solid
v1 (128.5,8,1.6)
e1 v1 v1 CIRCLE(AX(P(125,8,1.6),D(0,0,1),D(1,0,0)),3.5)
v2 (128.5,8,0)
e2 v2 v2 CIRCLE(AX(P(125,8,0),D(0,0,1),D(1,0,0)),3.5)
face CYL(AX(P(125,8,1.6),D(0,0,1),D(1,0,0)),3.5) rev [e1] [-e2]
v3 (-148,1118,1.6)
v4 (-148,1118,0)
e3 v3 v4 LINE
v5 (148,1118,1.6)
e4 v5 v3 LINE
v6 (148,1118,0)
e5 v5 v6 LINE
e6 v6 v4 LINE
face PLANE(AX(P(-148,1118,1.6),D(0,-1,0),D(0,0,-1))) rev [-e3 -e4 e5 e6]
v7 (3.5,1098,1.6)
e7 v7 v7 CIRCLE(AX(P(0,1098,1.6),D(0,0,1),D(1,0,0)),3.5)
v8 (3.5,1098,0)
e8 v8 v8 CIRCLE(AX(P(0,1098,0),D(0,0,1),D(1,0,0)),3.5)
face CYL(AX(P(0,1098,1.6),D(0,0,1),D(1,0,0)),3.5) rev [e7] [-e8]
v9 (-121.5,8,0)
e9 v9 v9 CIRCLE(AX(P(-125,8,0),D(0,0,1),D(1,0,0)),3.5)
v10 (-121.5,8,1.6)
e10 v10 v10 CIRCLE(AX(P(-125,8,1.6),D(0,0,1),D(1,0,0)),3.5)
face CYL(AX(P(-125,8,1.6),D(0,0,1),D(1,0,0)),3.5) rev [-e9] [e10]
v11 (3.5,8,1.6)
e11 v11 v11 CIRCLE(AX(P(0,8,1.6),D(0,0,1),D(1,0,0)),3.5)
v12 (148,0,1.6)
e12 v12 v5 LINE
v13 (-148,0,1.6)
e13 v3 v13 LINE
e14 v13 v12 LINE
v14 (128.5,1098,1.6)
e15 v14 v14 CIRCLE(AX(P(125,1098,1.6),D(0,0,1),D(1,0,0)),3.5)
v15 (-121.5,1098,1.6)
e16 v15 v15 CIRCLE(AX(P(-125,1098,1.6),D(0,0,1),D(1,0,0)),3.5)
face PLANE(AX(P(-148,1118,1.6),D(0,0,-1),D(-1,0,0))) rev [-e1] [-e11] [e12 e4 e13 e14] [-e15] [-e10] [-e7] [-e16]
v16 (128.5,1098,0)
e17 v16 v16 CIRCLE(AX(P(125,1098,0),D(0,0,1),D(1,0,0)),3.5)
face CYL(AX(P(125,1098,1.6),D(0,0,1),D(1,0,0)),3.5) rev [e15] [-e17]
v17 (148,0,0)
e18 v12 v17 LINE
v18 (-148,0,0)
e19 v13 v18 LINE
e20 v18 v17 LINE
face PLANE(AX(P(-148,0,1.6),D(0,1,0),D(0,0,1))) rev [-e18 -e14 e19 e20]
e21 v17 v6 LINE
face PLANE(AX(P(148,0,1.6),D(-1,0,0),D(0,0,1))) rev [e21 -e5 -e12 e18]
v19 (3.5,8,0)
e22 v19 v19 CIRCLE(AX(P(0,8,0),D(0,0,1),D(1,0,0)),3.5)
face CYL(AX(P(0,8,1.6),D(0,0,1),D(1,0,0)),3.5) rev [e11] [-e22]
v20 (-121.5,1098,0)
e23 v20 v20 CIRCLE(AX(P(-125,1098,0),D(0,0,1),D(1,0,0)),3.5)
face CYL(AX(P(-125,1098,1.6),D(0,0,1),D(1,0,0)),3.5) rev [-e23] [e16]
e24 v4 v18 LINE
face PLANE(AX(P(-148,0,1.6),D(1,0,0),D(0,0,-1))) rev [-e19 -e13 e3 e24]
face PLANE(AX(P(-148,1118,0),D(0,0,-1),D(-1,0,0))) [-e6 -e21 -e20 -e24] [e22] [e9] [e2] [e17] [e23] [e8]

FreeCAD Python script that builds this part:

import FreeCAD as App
import Part
import Sketcher

V = App.Vector

doc = App.newDocument("Part")
body = doc.addObject("PartDesign::Body", "Body")

# Sketch on XY plane
sketch1 = doc.addObject("Sketcher::SketchObject", "Sketch")
body.addObject(sketch1)
sketch1.AttachmentSupport = (doc.XY_Plane, [""])
sketch1.MapMode = "FlatFace"
sketch1.addGeometry([
    Part.LineSegment(V(-148, 1118, 0), V(-148, 0, 0)),
    Part.LineSegment(V(-148, 0, 0), V(148, 0, 0)),
    Part.LineSegment(V(148, 0, 0), V(148, 1118, 0)),
    Part.LineSegment(V(148, 1118, 0), V(-148, 1118, 0)),
], False)
sketch1.addConstraint([
    Sketcher.Constraint("Coincident", 0, 2, 1, 1),
    Sketcher.Constraint("Coincident", 1, 2, 2, 1),
    Sketcher.Constraint("Coincident", 2, 2, 3, 1),
    Sketcher.Constraint("Coincident", 3, 2, 0, 1),
    Sketcher.Constraint("Vertical", 0),
    Sketcher.Constraint("Horizontal", 1),
    Sketcher.Constraint("Vertical", 2),
    Sketcher.Constraint("Horizontal", 3),
    Sketcher.Constraint("Symmetric", 0, 2, 1, 2, -1, 1),
    Sketcher.Constraint("DistanceX", 1, 1, 1, 2, 296.0),
    Sketcher.Constraint("DistanceY", 0, 2, 0, 1, 1118.0),
])
pad1 = doc.addObject("PartDesign::Pad", "Pad")
body.addObject(pad1)
pad1.Profile = sketch1
pad1.Length = 1.6

# Sketch on XY plane
sketch2 = doc.addObject("Sketcher::SketchObject", "Sketch001")
body.addObject(sketch2)
sketch2.AttachmentSupport = (doc.XY_Plane, [""])
sketch2.MapMode = "FlatFace"
sketch2.AttachmentOffset = App.Placement(V(0, 0, 1.6), App.Rotation())
sketch2.addGeometry([
    Part.Circle(V(-125, 8, 0), V(0, 0, 1), 3.5),
    Part.Circle(V(0, 8, 0), V(0, 0, 1), 3.5),
    Part.Circle(V(125, 8, 0), V(0, 0, 1), 3.5),
], False)
sketch2.addConstraint([
    Sketcher.Constraint("Equal", 0, 1),
    Sketcher.Constraint("Equal", 1, 2),
    Sketcher.Constraint("Symmetric", 0, 3, 2, 3, -2),
    Sketcher.Constraint("PointOnObject", 1, 3, -2),
    Sketcher.Constraint("Horizontal", 0, 3, 1, 3),
    Sketcher.Constraint("Diameter", 0, 7.0),
    Sketcher.Constraint("DistanceX", 0, 3, -1, 1, 125.0),
    Sketcher.Constraint("DistanceY", -1, 1, 0, 3, 8.0),
])
doc.recompute()
hole = doc.addObject("PartDesign::Hole", "Hole")
body.addObject(hole)
hole.Profile = sketch2
hole.ThreadType = "None"
hole.Diameter = 7
hole.DepthType = "ThroughAll"
doc.recompute()

linearpattern = doc.addObject("PartDesign::LinearPattern", "LinearPattern")
body.addObject(linearpattern)
linearpattern.Originals = [hole]
linearpattern.Direction = (doc.Y_Axis, [""])
linearpattern.Mode = "offset"
linearpattern.Offset = 1090
linearpattern.Occurrences = 2
body.Tip = linearpattern

doc.recompute()
